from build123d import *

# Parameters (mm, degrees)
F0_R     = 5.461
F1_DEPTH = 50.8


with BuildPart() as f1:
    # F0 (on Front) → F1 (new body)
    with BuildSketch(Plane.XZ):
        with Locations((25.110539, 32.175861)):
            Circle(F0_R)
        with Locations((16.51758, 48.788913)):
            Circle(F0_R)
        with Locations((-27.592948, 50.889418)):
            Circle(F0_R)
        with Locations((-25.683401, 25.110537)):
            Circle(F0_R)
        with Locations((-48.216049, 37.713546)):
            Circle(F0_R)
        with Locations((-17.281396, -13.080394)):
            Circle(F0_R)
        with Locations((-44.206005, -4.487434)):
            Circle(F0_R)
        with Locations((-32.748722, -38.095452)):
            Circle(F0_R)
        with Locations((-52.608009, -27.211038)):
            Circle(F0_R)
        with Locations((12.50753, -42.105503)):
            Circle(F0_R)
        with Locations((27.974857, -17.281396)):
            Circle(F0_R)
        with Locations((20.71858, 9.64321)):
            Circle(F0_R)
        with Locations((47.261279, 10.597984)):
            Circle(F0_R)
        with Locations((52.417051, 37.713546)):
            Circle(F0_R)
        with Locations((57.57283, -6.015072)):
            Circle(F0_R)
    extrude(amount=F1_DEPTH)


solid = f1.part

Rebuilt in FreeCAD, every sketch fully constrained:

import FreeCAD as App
import Part
import Sketcher
from FreeCAD import Vector
Q = App.Units.Quantity

doc = App.newDocument("Part")
body = doc.addObject("PartDesign::Body", "Body")
body.AllowCompound = True

# Sketch on XZ plane
sketch1 = body.newObject("Sketcher::SketchObject", "Sketch")
sketch1.AttachmentSupport = (doc.getObject("XZ_Plane"), [""])
sketch1.MapMode = "FlatFace"
sketch1.addGeometry([
    Part.Circle(Vector(25.110539, 32.175861, 0), Vector(0, 0, 1), 5.461),  # 0
    Part.Circle(Vector(16.51758, 48.788913, 0), Vector(0, 0, 1), 5.461),  # 1
    Part.Circle(Vector(-27.592948, 50.889418, 0), Vector(0, 0, 1), 5.461),  # 2
    Part.Circle(Vector(-25.683401, 25.110537, 0), Vector(0, 0, 1), 5.461),  # 3
    Part.Circle(Vector(-48.216049, 37.713546, 0), Vector(0, 0, 1), 5.461),  # 4
    Part.Circle(Vector(-17.281396, -13.080394, 0), Vector(0, 0, 1), 5.461),  # 5
    Part.Circle(Vector(-44.206005, -4.487434, 0), Vector(0, 0, 1), 5.461),  # 6
    Part.Circle(Vector(-32.748722, -38.095452, 0), Vector(0, 0, 1), 5.461),  # 7
    Part.Circle(Vector(-52.608009, -27.211038, 0), Vector(0, 0, 1), 5.461),  # 8
    Part.Circle(Vector(12.50753, -42.105503, 0), Vector(0, 0, 1), 5.461),  # 9
    Part.Circle(Vector(27.974857, -17.281396, 0), Vector(0, 0, 1), 5.461),  # 10
    Part.Circle(Vector(20.71858, 9.64321, 0), Vector(0, 0, 1), 5.461),  # 11
    Part.Circle(Vector(47.261279, 10.597984, 0), Vector(0, 0, 1), 5.461),  # 12
    Part.Circle(Vector(52.417051, 37.713546, 0), Vector(0, 0, 1), 5.461),  # 13
    Part.Circle(Vector(57.57283, -6.015072, 0), Vector(0, 0, 1), 5.461),  # 14
], False)
sketch1.addConstraint([
    Sketcher.Constraint("Equal", 0, 1),
    Sketcher.Constraint("Equal", 1, 2),
    Sketcher.Constraint("Equal", 2, 3),
    Sketcher.Constraint("Equal", 3, 4),
    Sketcher.Constraint("Equal", 4, 5),
    Sketcher.Constraint("Equal", 5, 6),
    Sketcher.Constraint("Equal", 6, 7),
    Sketcher.Constraint("Equal", 7, 8),
    Sketcher.Constraint("Equal", 8, 9),
    Sketcher.Constraint("Equal", 9, 10),
    Sketcher.Constraint("Equal", 10, 11),
    Sketcher.Constraint("Equal", 11, 12),
    Sketcher.Constraint("Equal", 12, 13),
    Sketcher.Constraint("Equal", 13, 14),
    Sketcher.Constraint("Horizontal", 4, 3, 13, 3),
    Sketcher.Constraint("Diameter", 0, Q("0.43 in")),
    Sketcher.Constraint("DistanceX", 3, 3, -1, 1, Q("25.683401 mm")),
    Sketcher.Constraint("DistanceX", 4, 3, 2, 3, Q("20.623101 mm")),
    Sketcher.Constraint("DistanceY", 7, 3, 4, 3, Q("75.808998 mm")),
    Sketcher.Constraint("DistanceX", 1, 3, 11, 3, Q("4.201 mm")),
    Sketcher.Constraint("DistanceX", 11, 3, 12, 3, Q("26.542699 mm")),
    Sketcher.Constraint("DistanceX", -1, 1, 0, 3, Q("25.110539 mm")),
    Sketcher.Constraint("DistanceY", -1, 1, 0, 3, Q("32.175861 mm")),
    Sketcher.Constraint("DistanceX", -1, 1, 1, 3, Q("16.51758 mm")),
    Sketcher.Constraint("DistanceX", 2, 3, -1, 1, Q("27.592948 mm")),
    Sketcher.Constraint("DistanceX", 8, 3, -1, 1, Q("52.608009 mm")),
    Sketcher.Constraint("DistanceX", -1, 1, 9, 3, Q("12.50753 mm")),
    Sketcher.Constraint("DistanceY", -1, 1, 11, 3, Q("9.64321 mm")),
    Sketcher.Constraint("DistanceX", -1, 1, 13, 3, Q("52.417051 mm")),
    Sketcher.Constraint("DistanceX", -1, 1, 14, 3, Q("57.57283 mm")),
    Sketcher.Constraint("DistanceY", 3, 3, 2, 3, Q("25.778881 mm")),
    Sketcher.Constraint("DistanceY", 4, 3, 2, 3, Q("13.175872 mm")),
    Sketcher.Constraint("DistanceY", 5, 3, 3, 3, Q("38.190931 mm")),
    Sketcher.Constraint("DistanceX", 2, 3, 5, 3, Q("10.311552 mm")),
    Sketcher.Constraint("DistanceX", 6, 3, 5, 3, Q("26.924609 mm")),
    Sketcher.Constraint("DistanceY", 5, 3, 6, 3, Q("8.59296 mm")),
    Sketcher.Constraint("DistanceX", 7, 3, 3, 3, Q("7.065321 mm")),
    Sketcher.Constraint("DistanceY", 9, 3, 5, 3, Q("29.025109 mm")),
    Sketcher.Constraint("DistanceX", 0, 3, 10, 3, Q("2.864318 mm")),
    Sketcher.Constraint("DistanceY", 10, 3, 1, 3, Q("66.070309 mm")),
    Sketcher.Constraint("DistanceY", 10, 3, 12, 3, Q("27.87938 mm")),
    Sketcher.Constraint("DistanceY", -1, 1, 1, 3, Q("48.788913 mm")),
    Sketcher.Constraint("DistanceY", -1, 1, 2, 3, Q("50.889418 mm")),
    Sketcher.Constraint("DistanceY", 8, 3, -1, 1, Q("27.211038 mm")),
    Sketcher.Constraint("DistanceY", 14, 3, -1, 1, Q("6.015072 mm")),
])
pad1 = body.newObject("PartDesign::Pad", "Pad")
pad1.Profile = sketch1
pad1.Length = Q("2 in")

doc.recompute()
